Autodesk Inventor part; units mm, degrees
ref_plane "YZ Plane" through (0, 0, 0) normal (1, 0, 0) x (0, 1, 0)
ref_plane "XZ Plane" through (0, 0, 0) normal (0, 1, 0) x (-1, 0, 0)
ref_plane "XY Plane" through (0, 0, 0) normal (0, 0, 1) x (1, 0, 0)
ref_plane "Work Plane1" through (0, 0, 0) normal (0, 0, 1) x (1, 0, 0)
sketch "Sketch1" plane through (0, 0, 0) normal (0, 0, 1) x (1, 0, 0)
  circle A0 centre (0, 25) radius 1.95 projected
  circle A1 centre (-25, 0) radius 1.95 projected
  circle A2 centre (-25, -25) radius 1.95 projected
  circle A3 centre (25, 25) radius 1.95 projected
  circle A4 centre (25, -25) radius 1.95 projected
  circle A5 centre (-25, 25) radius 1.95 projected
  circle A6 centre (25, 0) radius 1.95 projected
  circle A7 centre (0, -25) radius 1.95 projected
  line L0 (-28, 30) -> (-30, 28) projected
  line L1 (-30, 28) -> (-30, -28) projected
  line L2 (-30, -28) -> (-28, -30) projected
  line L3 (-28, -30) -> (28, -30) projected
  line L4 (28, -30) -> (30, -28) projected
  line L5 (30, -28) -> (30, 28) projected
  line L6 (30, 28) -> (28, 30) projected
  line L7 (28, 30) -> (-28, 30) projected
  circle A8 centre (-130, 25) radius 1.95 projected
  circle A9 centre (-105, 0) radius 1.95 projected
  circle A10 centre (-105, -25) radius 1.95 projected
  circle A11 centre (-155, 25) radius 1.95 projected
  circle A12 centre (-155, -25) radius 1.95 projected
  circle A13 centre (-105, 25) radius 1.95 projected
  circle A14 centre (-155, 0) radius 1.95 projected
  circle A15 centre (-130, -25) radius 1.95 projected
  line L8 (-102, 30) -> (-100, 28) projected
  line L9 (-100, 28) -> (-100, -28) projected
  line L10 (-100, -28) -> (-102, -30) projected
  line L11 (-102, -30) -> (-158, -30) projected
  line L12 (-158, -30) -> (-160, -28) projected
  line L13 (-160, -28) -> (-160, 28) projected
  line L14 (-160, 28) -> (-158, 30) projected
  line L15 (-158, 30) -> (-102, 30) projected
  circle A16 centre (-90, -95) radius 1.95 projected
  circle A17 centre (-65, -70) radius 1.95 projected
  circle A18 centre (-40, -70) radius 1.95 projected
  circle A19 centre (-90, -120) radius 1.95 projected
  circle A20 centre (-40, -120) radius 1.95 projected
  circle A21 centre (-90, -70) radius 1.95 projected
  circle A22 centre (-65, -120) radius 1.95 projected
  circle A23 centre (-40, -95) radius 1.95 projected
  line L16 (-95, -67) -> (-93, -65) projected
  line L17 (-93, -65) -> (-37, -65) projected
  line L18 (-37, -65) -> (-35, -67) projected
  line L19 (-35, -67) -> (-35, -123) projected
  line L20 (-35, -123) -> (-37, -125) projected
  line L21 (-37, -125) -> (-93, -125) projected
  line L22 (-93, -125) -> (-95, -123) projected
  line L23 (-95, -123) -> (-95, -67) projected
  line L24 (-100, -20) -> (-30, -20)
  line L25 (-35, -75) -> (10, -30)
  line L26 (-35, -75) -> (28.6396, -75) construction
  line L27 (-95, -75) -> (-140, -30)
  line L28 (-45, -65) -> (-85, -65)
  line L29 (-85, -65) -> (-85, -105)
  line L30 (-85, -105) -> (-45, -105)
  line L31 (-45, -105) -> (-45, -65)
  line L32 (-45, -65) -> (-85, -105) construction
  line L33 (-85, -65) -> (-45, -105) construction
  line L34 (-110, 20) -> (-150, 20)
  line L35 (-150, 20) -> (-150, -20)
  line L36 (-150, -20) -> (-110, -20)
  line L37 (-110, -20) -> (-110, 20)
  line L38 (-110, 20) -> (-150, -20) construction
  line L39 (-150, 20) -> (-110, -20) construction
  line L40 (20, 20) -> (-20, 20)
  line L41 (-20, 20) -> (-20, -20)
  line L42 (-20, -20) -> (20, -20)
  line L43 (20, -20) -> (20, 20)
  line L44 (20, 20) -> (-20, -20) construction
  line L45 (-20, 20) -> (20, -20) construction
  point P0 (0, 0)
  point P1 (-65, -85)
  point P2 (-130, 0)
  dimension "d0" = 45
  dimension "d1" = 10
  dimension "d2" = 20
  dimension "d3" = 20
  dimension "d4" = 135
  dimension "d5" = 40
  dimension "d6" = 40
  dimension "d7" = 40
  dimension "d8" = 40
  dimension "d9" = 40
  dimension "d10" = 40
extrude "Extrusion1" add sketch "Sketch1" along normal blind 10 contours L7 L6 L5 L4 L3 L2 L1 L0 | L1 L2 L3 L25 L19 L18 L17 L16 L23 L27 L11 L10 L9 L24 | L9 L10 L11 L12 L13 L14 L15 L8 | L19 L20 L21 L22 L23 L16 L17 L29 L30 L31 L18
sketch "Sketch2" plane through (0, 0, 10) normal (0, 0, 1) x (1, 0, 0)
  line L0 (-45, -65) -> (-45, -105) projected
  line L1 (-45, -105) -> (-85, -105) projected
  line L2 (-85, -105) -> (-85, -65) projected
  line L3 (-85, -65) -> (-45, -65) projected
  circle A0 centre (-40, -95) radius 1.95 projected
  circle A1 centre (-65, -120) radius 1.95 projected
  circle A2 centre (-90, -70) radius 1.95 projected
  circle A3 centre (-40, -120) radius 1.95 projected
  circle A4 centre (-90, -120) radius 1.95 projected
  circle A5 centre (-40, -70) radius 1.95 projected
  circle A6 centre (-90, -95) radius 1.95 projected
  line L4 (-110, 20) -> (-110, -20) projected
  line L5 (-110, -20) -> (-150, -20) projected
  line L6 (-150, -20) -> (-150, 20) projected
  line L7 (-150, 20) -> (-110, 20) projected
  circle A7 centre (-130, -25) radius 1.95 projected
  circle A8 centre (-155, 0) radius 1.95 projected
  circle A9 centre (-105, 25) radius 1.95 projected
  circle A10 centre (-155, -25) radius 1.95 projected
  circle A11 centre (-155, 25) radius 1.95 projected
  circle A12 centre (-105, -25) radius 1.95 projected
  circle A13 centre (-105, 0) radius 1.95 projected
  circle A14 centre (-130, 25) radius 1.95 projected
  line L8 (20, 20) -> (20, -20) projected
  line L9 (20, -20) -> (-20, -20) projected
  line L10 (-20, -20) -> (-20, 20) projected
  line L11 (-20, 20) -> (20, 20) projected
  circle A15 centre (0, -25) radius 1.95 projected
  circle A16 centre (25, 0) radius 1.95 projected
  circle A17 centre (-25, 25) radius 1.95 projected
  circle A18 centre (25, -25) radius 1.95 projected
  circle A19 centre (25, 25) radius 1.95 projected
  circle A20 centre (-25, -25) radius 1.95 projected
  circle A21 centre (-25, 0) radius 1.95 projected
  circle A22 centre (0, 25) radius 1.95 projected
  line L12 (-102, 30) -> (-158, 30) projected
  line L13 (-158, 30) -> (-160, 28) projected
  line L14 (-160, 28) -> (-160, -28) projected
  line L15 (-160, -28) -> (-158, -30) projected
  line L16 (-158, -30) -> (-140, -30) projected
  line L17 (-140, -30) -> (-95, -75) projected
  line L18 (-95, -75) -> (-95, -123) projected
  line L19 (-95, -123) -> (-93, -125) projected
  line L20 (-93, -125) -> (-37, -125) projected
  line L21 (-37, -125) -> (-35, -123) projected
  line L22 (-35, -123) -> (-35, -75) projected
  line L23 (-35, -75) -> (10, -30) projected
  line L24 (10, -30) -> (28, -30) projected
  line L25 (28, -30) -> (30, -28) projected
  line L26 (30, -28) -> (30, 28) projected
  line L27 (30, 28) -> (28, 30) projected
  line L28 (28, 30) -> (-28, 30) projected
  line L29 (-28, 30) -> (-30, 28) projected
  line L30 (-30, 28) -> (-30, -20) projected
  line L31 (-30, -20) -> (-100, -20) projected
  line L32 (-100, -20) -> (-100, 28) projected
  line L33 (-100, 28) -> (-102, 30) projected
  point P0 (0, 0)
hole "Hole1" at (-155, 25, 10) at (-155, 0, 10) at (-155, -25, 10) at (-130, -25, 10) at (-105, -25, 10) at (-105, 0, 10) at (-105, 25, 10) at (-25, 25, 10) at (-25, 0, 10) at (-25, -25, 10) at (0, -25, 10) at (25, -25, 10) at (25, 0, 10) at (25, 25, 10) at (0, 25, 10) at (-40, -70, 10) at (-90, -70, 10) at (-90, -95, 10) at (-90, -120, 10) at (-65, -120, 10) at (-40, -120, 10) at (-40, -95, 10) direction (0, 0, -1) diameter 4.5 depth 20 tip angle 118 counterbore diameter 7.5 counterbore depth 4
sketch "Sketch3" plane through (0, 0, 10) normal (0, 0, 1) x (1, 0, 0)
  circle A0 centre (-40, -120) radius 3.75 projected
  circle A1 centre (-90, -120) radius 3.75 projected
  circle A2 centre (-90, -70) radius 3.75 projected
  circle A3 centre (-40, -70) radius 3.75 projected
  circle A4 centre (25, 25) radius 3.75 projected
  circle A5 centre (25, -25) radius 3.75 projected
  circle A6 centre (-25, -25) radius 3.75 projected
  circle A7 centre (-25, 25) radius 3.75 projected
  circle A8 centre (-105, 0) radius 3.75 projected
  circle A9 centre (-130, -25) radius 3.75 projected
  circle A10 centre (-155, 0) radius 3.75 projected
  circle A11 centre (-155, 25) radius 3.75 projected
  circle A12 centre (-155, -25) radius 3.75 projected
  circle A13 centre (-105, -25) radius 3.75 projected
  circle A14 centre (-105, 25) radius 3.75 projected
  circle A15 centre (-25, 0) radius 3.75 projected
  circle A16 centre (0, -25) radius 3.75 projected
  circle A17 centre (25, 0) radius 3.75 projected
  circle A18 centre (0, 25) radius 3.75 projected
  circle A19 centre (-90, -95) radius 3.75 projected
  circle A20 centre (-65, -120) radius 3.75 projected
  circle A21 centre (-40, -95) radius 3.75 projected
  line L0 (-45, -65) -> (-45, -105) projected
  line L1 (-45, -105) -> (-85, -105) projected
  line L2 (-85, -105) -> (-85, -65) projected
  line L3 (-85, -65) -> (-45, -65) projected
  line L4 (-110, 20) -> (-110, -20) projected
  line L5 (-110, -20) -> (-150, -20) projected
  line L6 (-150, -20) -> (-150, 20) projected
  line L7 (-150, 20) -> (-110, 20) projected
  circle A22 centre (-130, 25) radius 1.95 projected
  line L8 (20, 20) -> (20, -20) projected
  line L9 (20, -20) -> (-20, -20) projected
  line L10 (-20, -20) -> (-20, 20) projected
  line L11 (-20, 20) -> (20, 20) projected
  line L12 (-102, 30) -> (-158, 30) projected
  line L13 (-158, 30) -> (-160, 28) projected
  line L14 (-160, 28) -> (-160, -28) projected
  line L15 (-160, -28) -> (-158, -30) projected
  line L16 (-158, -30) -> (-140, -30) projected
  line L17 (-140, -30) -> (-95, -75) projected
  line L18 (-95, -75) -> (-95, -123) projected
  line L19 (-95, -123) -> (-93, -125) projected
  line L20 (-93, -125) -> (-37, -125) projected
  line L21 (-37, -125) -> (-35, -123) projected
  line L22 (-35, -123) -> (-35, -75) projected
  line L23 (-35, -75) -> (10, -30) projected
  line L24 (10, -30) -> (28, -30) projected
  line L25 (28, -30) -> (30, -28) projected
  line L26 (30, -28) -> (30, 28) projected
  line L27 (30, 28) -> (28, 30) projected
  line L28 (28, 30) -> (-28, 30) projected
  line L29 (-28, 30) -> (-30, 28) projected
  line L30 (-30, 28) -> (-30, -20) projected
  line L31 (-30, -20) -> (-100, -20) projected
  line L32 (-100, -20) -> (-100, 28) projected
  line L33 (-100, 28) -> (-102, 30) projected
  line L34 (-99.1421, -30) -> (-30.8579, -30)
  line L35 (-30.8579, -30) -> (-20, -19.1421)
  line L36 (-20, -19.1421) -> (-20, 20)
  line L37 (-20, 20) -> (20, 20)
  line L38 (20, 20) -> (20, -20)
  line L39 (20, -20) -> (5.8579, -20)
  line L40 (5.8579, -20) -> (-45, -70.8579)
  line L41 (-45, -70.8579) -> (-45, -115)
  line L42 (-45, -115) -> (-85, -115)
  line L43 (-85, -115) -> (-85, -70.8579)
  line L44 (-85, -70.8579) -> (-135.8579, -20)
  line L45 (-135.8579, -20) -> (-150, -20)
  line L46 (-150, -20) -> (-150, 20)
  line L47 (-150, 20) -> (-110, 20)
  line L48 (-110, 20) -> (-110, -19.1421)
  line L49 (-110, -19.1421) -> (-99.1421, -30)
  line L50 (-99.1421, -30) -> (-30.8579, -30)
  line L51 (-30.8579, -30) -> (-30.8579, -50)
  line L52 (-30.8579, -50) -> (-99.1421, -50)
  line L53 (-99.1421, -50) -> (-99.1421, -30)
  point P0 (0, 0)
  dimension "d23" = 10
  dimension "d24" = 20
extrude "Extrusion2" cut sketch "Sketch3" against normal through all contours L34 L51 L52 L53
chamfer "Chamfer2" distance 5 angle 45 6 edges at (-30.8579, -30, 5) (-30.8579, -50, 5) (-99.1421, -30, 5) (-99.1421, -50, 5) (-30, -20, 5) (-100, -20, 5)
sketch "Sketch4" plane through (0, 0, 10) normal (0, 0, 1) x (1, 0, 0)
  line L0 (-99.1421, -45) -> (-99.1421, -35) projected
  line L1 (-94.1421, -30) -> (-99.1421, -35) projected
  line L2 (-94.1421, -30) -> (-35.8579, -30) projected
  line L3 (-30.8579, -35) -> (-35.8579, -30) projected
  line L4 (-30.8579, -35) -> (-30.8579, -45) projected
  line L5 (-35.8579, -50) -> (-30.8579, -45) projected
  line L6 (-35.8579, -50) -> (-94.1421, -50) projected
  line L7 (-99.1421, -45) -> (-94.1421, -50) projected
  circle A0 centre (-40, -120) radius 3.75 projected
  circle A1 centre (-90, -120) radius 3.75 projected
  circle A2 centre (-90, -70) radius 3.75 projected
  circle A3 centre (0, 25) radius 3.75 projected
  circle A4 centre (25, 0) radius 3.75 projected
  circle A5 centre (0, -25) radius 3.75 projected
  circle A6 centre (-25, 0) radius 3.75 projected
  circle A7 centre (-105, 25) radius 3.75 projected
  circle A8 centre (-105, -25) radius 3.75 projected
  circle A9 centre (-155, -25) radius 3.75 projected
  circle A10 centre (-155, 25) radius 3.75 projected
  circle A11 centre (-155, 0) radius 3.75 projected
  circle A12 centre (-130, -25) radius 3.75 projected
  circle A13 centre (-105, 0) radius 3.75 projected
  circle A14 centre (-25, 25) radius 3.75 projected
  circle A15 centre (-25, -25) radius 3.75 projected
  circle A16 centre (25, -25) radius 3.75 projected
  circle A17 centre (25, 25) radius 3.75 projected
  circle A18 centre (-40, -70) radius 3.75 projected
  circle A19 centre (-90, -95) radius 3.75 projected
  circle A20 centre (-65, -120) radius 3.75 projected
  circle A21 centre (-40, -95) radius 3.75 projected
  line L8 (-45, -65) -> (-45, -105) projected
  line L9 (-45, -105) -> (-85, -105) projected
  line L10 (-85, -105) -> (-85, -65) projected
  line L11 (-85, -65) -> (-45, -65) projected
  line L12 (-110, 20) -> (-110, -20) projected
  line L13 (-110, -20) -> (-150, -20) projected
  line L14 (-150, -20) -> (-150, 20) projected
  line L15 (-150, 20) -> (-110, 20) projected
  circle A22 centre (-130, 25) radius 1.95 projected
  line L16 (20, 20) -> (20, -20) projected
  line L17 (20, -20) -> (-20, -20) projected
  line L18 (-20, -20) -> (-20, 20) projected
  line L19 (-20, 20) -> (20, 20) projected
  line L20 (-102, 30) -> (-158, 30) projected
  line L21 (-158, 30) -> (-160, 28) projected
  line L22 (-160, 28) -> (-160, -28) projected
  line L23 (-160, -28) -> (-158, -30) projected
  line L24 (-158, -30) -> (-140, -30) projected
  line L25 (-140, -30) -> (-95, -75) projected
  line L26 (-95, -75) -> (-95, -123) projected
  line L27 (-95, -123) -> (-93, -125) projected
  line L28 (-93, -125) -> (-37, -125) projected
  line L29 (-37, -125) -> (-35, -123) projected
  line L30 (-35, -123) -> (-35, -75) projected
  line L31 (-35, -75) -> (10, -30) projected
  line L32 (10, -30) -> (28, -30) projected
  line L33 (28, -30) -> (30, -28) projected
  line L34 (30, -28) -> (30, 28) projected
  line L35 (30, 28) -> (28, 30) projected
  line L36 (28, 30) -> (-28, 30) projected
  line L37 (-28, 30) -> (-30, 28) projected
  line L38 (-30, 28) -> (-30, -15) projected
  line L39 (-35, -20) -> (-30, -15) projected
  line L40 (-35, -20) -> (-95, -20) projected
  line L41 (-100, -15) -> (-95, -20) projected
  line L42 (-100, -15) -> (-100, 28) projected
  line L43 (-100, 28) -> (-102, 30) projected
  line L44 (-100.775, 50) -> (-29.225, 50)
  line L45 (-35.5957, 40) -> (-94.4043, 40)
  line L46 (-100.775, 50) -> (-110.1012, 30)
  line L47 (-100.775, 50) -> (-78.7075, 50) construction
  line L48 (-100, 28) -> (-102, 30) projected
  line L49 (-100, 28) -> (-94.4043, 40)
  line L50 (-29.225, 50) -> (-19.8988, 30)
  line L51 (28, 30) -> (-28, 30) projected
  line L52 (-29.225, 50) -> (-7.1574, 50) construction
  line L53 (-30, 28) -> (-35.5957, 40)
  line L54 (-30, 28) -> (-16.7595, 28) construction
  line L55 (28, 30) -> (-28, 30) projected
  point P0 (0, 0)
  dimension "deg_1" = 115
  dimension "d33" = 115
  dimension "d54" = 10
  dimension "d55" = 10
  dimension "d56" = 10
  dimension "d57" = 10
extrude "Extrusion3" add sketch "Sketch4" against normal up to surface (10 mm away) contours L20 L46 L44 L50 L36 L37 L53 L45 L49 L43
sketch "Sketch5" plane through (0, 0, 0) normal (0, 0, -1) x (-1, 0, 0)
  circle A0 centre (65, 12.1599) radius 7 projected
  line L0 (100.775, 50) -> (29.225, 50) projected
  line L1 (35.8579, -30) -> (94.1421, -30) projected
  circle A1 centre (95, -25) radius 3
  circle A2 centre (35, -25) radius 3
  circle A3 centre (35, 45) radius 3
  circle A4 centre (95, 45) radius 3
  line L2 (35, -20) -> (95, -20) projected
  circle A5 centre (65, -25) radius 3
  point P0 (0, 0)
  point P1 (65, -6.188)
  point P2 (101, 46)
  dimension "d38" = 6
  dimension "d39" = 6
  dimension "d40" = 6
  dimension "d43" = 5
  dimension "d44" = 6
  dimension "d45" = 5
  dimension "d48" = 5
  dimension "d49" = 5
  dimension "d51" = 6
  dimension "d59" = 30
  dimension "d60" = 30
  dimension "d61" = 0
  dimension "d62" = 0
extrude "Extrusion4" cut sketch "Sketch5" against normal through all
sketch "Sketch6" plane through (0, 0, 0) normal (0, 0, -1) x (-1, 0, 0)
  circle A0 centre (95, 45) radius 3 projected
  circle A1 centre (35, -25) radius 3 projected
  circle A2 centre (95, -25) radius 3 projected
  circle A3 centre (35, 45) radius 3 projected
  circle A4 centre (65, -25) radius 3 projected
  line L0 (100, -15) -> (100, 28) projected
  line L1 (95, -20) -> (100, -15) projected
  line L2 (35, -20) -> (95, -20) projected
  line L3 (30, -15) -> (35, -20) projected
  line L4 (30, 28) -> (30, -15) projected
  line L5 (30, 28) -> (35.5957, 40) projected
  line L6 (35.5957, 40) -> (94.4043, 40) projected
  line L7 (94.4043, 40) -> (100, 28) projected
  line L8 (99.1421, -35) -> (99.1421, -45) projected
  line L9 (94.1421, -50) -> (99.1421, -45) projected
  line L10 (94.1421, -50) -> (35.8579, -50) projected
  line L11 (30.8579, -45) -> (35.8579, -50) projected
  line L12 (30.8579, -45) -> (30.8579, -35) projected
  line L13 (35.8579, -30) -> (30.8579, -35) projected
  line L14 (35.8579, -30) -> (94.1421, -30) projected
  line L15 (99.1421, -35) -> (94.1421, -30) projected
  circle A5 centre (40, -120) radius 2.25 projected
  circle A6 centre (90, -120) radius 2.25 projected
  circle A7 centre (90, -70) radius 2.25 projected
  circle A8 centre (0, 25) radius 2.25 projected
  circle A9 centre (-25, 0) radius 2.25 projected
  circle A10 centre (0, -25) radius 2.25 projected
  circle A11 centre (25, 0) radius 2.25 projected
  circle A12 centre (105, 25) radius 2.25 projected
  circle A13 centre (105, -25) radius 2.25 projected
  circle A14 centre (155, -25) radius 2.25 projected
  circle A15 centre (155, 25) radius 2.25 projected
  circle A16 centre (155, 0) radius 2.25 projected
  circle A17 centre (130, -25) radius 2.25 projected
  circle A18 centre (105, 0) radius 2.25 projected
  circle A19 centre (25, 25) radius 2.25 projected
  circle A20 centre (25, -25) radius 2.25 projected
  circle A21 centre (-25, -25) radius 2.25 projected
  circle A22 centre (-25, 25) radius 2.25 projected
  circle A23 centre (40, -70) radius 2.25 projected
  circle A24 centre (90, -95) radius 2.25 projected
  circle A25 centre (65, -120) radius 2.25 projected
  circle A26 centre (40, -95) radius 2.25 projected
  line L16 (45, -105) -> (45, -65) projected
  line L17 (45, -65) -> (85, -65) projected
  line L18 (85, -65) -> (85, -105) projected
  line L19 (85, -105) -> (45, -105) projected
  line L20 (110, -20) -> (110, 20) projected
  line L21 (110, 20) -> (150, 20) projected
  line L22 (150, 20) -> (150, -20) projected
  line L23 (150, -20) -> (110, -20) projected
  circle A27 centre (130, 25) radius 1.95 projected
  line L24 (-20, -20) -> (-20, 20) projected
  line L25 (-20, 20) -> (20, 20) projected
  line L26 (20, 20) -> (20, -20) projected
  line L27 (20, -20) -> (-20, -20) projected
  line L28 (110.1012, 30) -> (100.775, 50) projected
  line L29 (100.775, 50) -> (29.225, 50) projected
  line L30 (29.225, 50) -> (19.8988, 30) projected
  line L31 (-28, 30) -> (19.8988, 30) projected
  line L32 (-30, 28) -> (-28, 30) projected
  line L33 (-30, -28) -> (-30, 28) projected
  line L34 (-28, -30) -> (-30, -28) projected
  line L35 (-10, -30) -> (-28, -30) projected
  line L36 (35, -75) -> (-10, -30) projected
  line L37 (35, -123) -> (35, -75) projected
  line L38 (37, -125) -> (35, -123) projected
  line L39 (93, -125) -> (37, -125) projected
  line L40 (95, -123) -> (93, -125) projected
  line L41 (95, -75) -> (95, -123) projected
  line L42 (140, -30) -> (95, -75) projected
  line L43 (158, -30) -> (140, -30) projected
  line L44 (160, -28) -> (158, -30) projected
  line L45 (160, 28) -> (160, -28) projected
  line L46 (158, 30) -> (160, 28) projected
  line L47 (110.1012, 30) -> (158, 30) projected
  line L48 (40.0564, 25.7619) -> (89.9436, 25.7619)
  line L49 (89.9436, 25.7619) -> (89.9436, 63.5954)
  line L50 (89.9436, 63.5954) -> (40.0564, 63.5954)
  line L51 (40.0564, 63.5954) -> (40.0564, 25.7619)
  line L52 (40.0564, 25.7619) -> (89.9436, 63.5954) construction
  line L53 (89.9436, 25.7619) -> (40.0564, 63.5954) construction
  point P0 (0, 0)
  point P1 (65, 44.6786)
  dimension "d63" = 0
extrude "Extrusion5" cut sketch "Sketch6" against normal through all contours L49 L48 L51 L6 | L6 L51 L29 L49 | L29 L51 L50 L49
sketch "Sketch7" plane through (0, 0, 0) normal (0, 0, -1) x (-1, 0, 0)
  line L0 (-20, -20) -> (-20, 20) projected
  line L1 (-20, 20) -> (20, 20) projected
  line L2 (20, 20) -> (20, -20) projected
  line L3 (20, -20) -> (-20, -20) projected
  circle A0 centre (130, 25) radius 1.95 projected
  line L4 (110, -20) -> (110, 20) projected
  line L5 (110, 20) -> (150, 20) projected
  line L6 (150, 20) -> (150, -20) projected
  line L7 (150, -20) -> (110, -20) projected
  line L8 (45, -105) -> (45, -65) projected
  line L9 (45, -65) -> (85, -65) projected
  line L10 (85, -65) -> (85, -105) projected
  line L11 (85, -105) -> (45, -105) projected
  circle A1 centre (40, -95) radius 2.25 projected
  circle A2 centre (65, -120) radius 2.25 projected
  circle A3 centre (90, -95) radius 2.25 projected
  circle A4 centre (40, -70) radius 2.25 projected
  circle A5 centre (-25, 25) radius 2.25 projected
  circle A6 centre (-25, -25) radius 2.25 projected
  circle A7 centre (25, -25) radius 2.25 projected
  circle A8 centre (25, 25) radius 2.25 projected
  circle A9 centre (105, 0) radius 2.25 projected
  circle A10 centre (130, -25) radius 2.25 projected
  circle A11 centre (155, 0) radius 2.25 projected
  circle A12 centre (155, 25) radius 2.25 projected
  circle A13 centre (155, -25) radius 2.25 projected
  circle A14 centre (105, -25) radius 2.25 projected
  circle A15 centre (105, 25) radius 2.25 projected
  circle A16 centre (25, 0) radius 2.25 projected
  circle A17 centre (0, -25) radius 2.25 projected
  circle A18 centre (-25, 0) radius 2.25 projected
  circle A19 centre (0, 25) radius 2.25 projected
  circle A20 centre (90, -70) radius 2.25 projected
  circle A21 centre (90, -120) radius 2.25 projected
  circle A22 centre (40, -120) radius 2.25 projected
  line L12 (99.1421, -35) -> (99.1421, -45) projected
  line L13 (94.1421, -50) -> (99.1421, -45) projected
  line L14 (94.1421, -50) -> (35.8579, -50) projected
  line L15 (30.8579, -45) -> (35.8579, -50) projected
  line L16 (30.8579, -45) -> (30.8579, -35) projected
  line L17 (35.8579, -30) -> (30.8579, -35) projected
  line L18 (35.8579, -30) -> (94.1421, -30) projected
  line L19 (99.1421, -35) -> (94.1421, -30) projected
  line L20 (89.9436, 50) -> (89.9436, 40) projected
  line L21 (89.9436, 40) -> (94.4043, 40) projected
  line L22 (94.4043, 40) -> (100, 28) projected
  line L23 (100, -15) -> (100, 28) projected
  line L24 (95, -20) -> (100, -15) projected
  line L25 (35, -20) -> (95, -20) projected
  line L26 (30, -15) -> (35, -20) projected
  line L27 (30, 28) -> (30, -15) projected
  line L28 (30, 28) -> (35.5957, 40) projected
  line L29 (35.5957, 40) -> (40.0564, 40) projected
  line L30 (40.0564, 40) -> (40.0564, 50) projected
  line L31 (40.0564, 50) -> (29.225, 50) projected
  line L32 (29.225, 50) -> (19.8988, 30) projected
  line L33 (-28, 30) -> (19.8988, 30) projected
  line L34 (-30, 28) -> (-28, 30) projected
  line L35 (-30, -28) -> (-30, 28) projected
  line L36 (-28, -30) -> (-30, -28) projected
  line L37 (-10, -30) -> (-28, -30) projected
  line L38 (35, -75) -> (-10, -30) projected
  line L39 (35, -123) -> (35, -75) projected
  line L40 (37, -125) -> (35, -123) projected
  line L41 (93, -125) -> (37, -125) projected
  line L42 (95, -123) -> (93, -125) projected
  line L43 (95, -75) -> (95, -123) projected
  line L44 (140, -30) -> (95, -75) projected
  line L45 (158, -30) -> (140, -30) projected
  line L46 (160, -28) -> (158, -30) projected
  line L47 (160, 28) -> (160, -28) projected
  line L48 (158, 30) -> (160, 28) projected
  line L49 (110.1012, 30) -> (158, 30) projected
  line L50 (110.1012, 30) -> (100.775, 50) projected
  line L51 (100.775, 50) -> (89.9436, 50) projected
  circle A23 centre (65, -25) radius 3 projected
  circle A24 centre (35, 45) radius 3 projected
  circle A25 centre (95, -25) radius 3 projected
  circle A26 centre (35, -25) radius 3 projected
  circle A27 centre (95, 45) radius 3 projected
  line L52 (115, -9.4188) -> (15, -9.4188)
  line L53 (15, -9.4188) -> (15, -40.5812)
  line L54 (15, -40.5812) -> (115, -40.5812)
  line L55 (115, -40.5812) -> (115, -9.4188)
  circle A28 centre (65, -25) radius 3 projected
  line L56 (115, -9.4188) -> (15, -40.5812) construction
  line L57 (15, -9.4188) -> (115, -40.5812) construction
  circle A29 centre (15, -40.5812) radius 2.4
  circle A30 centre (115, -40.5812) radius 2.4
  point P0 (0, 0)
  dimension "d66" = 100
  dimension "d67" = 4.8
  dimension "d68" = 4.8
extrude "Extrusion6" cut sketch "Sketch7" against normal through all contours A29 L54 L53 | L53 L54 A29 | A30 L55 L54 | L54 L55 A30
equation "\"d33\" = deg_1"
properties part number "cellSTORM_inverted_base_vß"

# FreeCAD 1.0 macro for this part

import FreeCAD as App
import Part
import Sketcher
Q = App.Units.Quantity


def edges_at(feature, points):
    """Names of the edges that pass closest to the given points."""
    edges = feature.Shape.Edges
    near = lambda p: min(range(len(edges)), key=lambda i: edges[i].distToShape(Part.Vertex(*p))[0])
    return sorted({f"Edge{near(p) + 1}" for p in points})


def add_polygon(sketch, points):
    """Adds a closed chain of lines whose ends are joined by coincident constraints."""
    first, n = sketch.GeometryCount, len(points)
    for a, b in zip(points, points[1:] + points[:1]):
        sketch.addGeometry(Part.LineSegment(App.Vector(*a, 0), App.Vector(*b, 0)), False)
    for i in range(n):
        sketch.addConstraint(Sketcher.Constraint("Coincident", first + i, 2, first + (i + 1) % n, 1))

doc = App.newDocument("Part")
body = doc.addObject("PartDesign::Body", "Body")

sketch1 = body.newObject("Sketcher::SketchObject", "Sketch")
sketch1.AttachmentSupport = (doc.getObject("XY_Plane"), [""])
sketch1.MapMode = "FlatFace"
add_polygon(sketch1, [(28, 30), (-28, 30), (-30, 28), (-30, -20), (-100, -20), (-100, 28), (-102, 30), (-158, 30), (-160, 28), (-160, -28), (-158, -30), (-140, -30), (-95, -75), (-95, -123), (-93, -125), (-37, -125), (-35, -123), (-35, -75), (10, -30), (28, -30), (30, -28), (30, 28)])
sketch1.addGeometry(Part.Circle(App.Vector(-25, -25, 0), App.Vector(0, 0, 1), 1.9), False)
sketch1.addGeometry(Part.Circle(App.Vector(0, -25, 0), App.Vector(0, 0, 1), 1.9), False)
sketch1.addGeometry(Part.Circle(App.Vector(25, -25, 0), App.Vector(0, 0, 1), 1.9), False)
sketch1.addGeometry(Part.Circle(App.Vector(-25, 0, 0), App.Vector(0, 0, 1), 1.9), False)
sketch1.addGeometry(Part.Circle(App.Vector(-25, 25, 0), App.Vector(0, 0, 1), 1.9), False)
add_polygon(sketch1, [(-20, 20), (20, 20), (20, -20), (-20, -20)])
sketch1.addGeometry(Part.Circle(App.Vector(25, 0, 0), App.Vector(0, 0, 1), 1.9), False)
sketch1.addGeometry(Part.Circle(App.Vector(0, 25, 0), App.Vector(0, 0, 1), 1.9), False)
sketch1.addGeometry(Part.Circle(App.Vector(25, 25, 0), App.Vector(0, 0, 1), 1.9), False)
add_polygon(sketch1, [(-85, -65), (-45, -65), (-45, -105), (-85, -105)])
sketch1.addGeometry(Part.Circle(App.Vector(-105, 0, 0), App.Vector(0, 0, 1), 1.9), False)
sketch1.addGeometry(Part.Circle(App.Vector(-105, 25, 0), App.Vector(0, 0, 1), 1.9), False)
sketch1.addGeometry(Part.Circle(App.Vector(-130, 25, 0), App.Vector(0, 0, 1), 1.9), False)
sketch1.addGeometry(Part.Circle(App.Vector(-155, -25, 0), App.Vector(0, 0, 1), 1.9), False)
sketch1.addGeometry(Part.Circle(App.Vector(-130, -25, 0), App.Vector(0, 0, 1), 1.9), False)
sketch1.addGeometry(Part.Circle(App.Vector(-105, -25, 0), App.Vector(0, 0, 1), 1.9), False)
sketch1.addGeometry(Part.Circle(App.Vector(-155, 0, 0), App.Vector(0, 0, 1), 1.9), False)
add_polygon(sketch1, [(-150, 20), (-110, 20), (-110, -20), (-150, -20)])
sketch1.addGeometry(Part.Circle(App.Vector(-155, 25, 0), App.Vector(0, 0, 1), 1.9), False)
sketch1.addGeometry(Part.Circle(App.Vector(-90, -95, 0), App.Vector(0, 0, 1), 1.9), False)
sketch1.addGeometry(Part.Circle(App.Vector(-90, -70, 0), App.Vector(0, 0, 1), 1.9), False)
sketch1.addGeometry(Part.Circle(App.Vector(-65, -120, 0), App.Vector(0, 0, 1), 1.9), False)
sketch1.addGeometry(Part.Circle(App.Vector(-40, -120, 0), App.Vector(0, 0, 1), 1.9), False)
sketch1.addGeometry(Part.Circle(App.Vector(-40, -95, 0), App.Vector(0, 0, 1), 1.9), False)
sketch1.addGeometry(Part.Circle(App.Vector(-40, -70, 0), App.Vector(0, 0, 1), 1.9), False)
sketch1.addGeometry(Part.Circle(App.Vector(-90, -120, 0), App.Vector(0, 0, 1), 1.9), False)
sketch1.addConstraint(Sketcher.Constraint("Horizontal", 0))
sketch1.addConstraint(Sketcher.Constraint("Vertical", 2))
sketch1.addConstraint(Sketcher.Constraint("Horizontal", 3))
sketch1.addConstraint(Sketcher.Constraint("Vertical", 4))
sketch1.addConstraint(Sketcher.Constraint("Horizontal", 6))
sketch1.addConstraint(Sketcher.Constraint("Vertical", 8))
sketch1.addConstraint(Sketcher.Constraint("Horizontal", 10))
sketch1.addConstraint(Sketcher.Constraint("Vertical", 12))
sketch1.addConstraint(Sketcher.Constraint("Horizontal", 14))
sketch1.addConstraint(Sketcher.Constraint("Vertical", 16))
sketch1.addConstraint(Sketcher.Constraint("Horizontal", 18))
sketch1.addConstraint(Sketcher.Constraint("Vertical", 20))
sketch1.addConstraint(Sketcher.Constraint("Horizontal", 27))
sketch1.addConstraint(Sketcher.Constraint("Vertical", 28))
sketch1.addConstraint(Sketcher.Constraint("Horizontal", 29))
sketch1.addConstraint(Sketcher.Constraint("Vertical", 30))
sketch1.addConstraint(Sketcher.Constraint("Horizontal", 34))
sketch1.addConstraint(Sketcher.Constraint("Vertical", 35))
sketch1.addConstraint(Sketcher.Constraint("Horizontal", 36))
sketch1.addConstraint(Sketcher.Constraint("Vertical", 37))
sketch1.addConstraint(Sketcher.Constraint("Horizontal", 45))
sketch1.addConstraint(Sketcher.Constraint("Vertical", 46))
sketch1.addConstraint(Sketcher.Constraint("Horizontal", 47))
sketch1.addConstraint(Sketcher.Constraint("Vertical", 48))
sketch1.addConstraint(Sketcher.Constraint("Equal", 22, 23))
sketch1.addConstraint(Sketcher.Constraint("Equal", 23, 24))
sketch1.addConstraint(Sketcher.Constraint("Equal", 24, 25))
sketch1.addConstraint(Sketcher.Constraint("Equal", 25, 26))
sketch1.addConstraint(Sketcher.Constraint("Equal", 26, 31))
sketch1.addConstraint(Sketcher.Constraint("Equal", 31, 32))
sketch1.addConstraint(Sketcher.Constraint("Equal", 32, 33))
sketch1.addConstraint(Sketcher.Constraint("Equal", 33, 38))
sketch1.addConstraint(Sketcher.Constraint("Equal", 38, 39))
sketch1.addConstraint(Sketcher.Constraint("Equal", 39, 40))
sketch1.addConstraint(Sketcher.Constraint("Equal", 40, 41))
sketch1.addConstraint(Sketcher.Constraint("Equal", 41, 42))
sketch1.addConstraint(Sketcher.Constraint("Equal", 42, 43))
sketch1.addConstraint(Sketcher.Constraint("Equal", 43, 44))
sketch1.addConstraint(Sketcher.Constraint("Equal", 44, 49))
sketch1.addConstraint(Sketcher.Constraint("Equal", 49, 50))
sketch1.addConstraint(Sketcher.Constraint("Equal", 50, 51))
sketch1.addConstraint(Sketcher.Constraint("Equal", 51, 52))
sketch1.addConstraint(Sketcher.Constraint("Equal", 52, 53))
sketch1.addConstraint(Sketcher.Constraint("Equal", 53, 54))
sketch1.addConstraint(Sketcher.Constraint("Equal", 54, 55))
sketch1.addConstraint(Sketcher.Constraint("Equal", 55, 56))
sketch1.addConstraint(Sketcher.Constraint("Symmetric", 24, 3, 26, 3, -1, 1))
sketch1.addConstraint(Sketcher.Constraint("Symmetric", 25, 3, 31, 3, -1, 1))
sketch1.addConstraint(Sketcher.Constraint("Symmetric", 23, 3, 32, 3, -1, 1))
sketch1.addConstraint(Sketcher.Constraint("Symmetric", 22, 3, 33, 3, -1, 1))
sketch1.addConstraint(Sketcher.Constraint("Symmetric", 0, 2, 18, 2, -1, 1))
sketch1.addConstraint(Sketcher.Constraint("Symmetric", 1, 2, 19, 2, -1, 1))
sketch1.addConstraint(Sketcher.Constraint("Symmetric", 27, 2, 29, 2, -1, 1))
sketch1.addConstraint(Sketcher.Constraint("Symmetric", 22, 3, 24, 3, -2))
sketch1.addConstraint(Sketcher.Constraint("Symmetric", 40, 3, 42, 3, -1))
sketch1.addConstraint(Sketcher.Constraint("Symmetric", 39, 3, 43, 3, -1))
sketch1.addConstraint(Sketcher.Constraint("Symmetric", 41, 3, 49, 3, -1))
sketch1.addConstraint(Sketcher.Constraint("Symmetric", 6, 2, 9, 2, -1))
sketch1.addConstraint(Sketcher.Constraint("PointOnObject", 23, 3, -2))
sketch1.addConstraint(Sketcher.Constraint("PointOnObject", 25, 3, -1))
sketch1.addConstraint(Sketcher.Constraint("PointOnObject", 38, 3, -1))
sketch1.addConstraint(Sketcher.Constraint("PointOnObject", 44, 3, -1))
sketch1.addConstraint(Sketcher.Constraint("Perpendicular", 1, 5))
sketch1.addConstraint(Sketcher.Constraint("Perpendicular", 5, 7))
sketch1.addConstraint(Sketcher.Constraint("Perpendicular", 7, 9))
sketch1.addConstraint(Sketcher.Constraint("Parallel", 9, 11))
sketch1.addConstraint(Sketcher.Constraint("Parallel", 11, 13))
sketch1.addConstraint(Sketcher.Constraint("Perpendicular", 13, 15))
sketch1.addConstraint(Sketcher.Constraint("Parallel", 15, 17))
sketch1.addConstraint(Sketcher.Constraint("Perpendicular", 19, 21))
sketch1.addConstraint(Sketcher.Constraint("Horizontal", 22, 3, 23, 3))
sketch1.addConstraint(Sketcher.Constraint("Horizontal", 33, 3, 39, 3))
sketch1.addConstraint(Sketcher.Constraint("Horizontal", 39, 3, 40, 3))
sketch1.addConstraint(Sketcher.Constraint("Horizontal", 24, 3, 41, 3))
sketch1.addConstraint(Sketcher.Constraint("Horizontal", 52, 3, 53, 3))
sketch1.addConstraint(Sketcher.Constraint("Horizontal", 50, 3, 54, 3))
sketch1.addConstraint(Sketcher.Constraint("Horizontal", 51, 3, 55, 3))
sketch1.addConstraint(Sketcher.Constraint("Horizontal", 53, 3, 56, 3))
sketch1.addConstraint(Sketcher.Constraint("Horizontal", 1, 2, 4, 2))
sketch1.addConstraint(Sketcher.Constraint("Horizontal", 0, 2, 5, 2))
sketch1.addConstraint(Sketcher.Constraint("Horizontal", 4, 2, 7, 2))
sketch1.addConstraint(Sketcher.Constraint("Horizontal", 12, 2, 15, 2))
sketch1.addConstraint(Sketcher.Constraint("Horizontal", 11, 2, 16, 2))
sketch1.addConstraint(Sketcher.Constraint("Horizontal", 8, 2, 19, 2))
sketch1.addConstraint(Sketcher.Constraint("Horizontal", 7, 2, 20, 2))
sketch1.addConstraint(Sketcher.Constraint("Horizontal", 3, 2, 28, 2))
sketch1.addConstraint(Sketcher.Constraint("Horizontal", 30, 2, 45, 2))
sketch1.addConstraint(Sketcher.Constraint("Horizontal", 29, 2, 46, 2))
sketch1.addConstraint(Sketcher.Constraint("Vertical", 22, 3, 25, 3))
sketch1.addConstraint(Sketcher.Constraint("Vertical", 38, 3, 39, 3))
sketch1.addConstraint(Sketcher.Constraint("Vertical", 41, 3, 44, 3))
sketch1.addConstraint(Sketcher.Constraint("Vertical", 50, 3, 51, 3))
sketch1.addConstraint(Sketcher.Constraint("Vertical", 53, 3, 54, 3))
sketch1.addConstraint(Sketcher.Constraint("Vertical", 54, 3, 55, 3))
sketch1.addConstraint(Sketcher.Constraint("Vertical", 51, 3, 56, 3))
sketch1.addConstraint(Sketcher.Constraint("Equal", 0, 6))
sketch1.addConstraint(Sketcher.Constraint("Equal", 6, 14))
sketch1.addConstraint(Sketcher.Constraint("Equal", 10, 18))
sketch1.addConstraint(Sketcher.Constraint("Equal", 29, 34))
sketch1.addConstraint(Sketcher.Constraint("Equal", 36, 45))
sketch1.addConstraint(Sketcher.Constraint("Equal", 14, 8))
sketch1.addConstraint(Sketcher.Constraint("Equal", 4, 12))
sketch1.addConstraint(Sketcher.Constraint("Equal", 47, 28))
sketch1.addConstraint(Sketcher.Constraint("Equal", 30, 35))
sketch1.addConstraint(Sketcher.Constraint("Equal", 9, 13))
sketch1.addConstraint(Sketcher.Constraint("DistanceX", 27, 1, 27, 2, Q("40 mm")))
sketch1.addConstraint(Sketcher.Constraint("DistanceX", 53, 3, -1, 1, Q("40 mm")))
sketch1.addConstraint(Sketcher.Constraint("DistanceX", -1, 1, 17, 2, Q("10 mm")))
sketch1.addConstraint(Sketcher.Constraint("DistanceX", 34, 2, -1, 1, Q("45 mm")))
sketch1.addConstraint(Sketcher.Constraint("DistanceX", 42, 3, 50, 3, Q("40 mm")))
sketch1.addConstraint(Sketcher.Constraint("DistanceY", 51, 3, 43, 3, Q("45 mm")))
sketch1.addConstraint(Sketcher.Constraint("DistanceX", 52, 3, 22, 3, Q("40 mm")))
sketch1.addConstraint(Sketcher.Constraint("DistanceX", 43, 3, 52, 3, Q("40 mm")))
sketch1.addConstraint(Sketcher.Constraint("DistanceY", 2, 2, 26, 3, Q("45 mm")))
sketch1.addConstraint(Sketcher.Constraint("DistanceX", 3, 2, 51, 3, Q("10 mm")))
sketch1.addConstraint(Sketcher.Constraint("DistanceX", 10, 2, 42, 3, Q("10 mm")))
sketch1.addConstraint(Sketcher.Constraint("DistanceY", 50, 3, 11, 2, Q("20 mm")))
sketch1.addConstraint(Sketcher.Constraint("DistanceY", 56, 3, 11, 2, Q("45 mm")))
sketch1.addConstraint(Sketcher.Constraint("DistanceX", 43, 3, 11, 2, Q("10 mm")))
sketch1.addConstraint(Sketcher.Constraint("DistanceX", 34, 2, 16, 2, Q("10 mm")))
sketch1.addConstraint(Sketcher.Constraint("DistanceY", 16, 2, 34, 2, Q("10 mm")))
sketch1.addConstraint(Sketcher.Constraint("DistanceX", 45, 2, 4, 2, Q("10 mm")))
sketch1.addConstraint(Sketcher.Constraint("Diameter", 22, Q("3.9 mm")))
sketch1.addConstraint(Sketcher.Constraint("DistanceX", 0, 2, 0, 1, Q("56 mm")))
sketch1.addConstraint(Sketcher.Constraint("DistanceX", 41, 3, -1, 1, Q("155 mm")))
pad1 = body.newObject("PartDesign::Pad", "Pad")
pad1.Profile = sketch1
pad1.Length = 10

sketch2 = body.newObject("Sketcher::SketchObject", "Sketch001")
sketch2.AttachmentSupport = (doc.getObject("XY_Plane"), [""])
sketch2.MapMode = "FlatFace"
sketch2.AttachmentOffset = App.Placement(App.Vector(0, 0, 10), App.Rotation())
sketch2.addGeometry(Part.Circle(App.Vector(-155, 25, 0), App.Vector(0, 0, 1), 2.2), False)
sketch2.addGeometry(Part.Circle(App.Vector(-155, 0, 0), App.Vector(0, 0, 1), 2.2), False)
sketch2.addGeometry(Part.Circle(App.Vector(-155, -25, 0), App.Vector(0, 0, 1), 2.2), False)
sketch2.addGeometry(Part.Circle(App.Vector(-130, -25, 0), App.Vector(0, 0, 1), 2.2), False)
sketch2.addGeometry(Part.Circle(App.Vector(-105, -25, 0), App.Vector(0, 0, 1), 2.2), False)
sketch2.addGeometry(Part.Circle(App.Vector(-105, 0, 0), App.Vector(0, 0, 1), 2.2), False)
sketch2.addGeometry(Part.Circle(App.Vector(-105, 25, 0), App.Vector(0, 0, 1), 2.2), False)
sketch2.addGeometry(Part.Circle(App.Vector(-25, 25, 0), App.Vector(0, 0, 1), 2.2), False)
sketch2.addGeometry(Part.Circle(App.Vector(-25, 0, 0), App.Vector(0, 0, 1), 2.2), False)
sketch2.addGeometry(Part.Circle(App.Vector(-25, -25, 0), App.Vector(0, 0, 1), 2.2), False)
sketch2.addGeometry(Part.Circle(App.Vector(0, -25, 0), App.Vector(0, 0, 1), 2.2), False)
sketch2.addGeometry(Part.Circle(App.Vector(25, -25, 0), App.Vector(0, 0, 1), 2.2), False)
sketch2.addGeometry(Part.Circle(App.Vector(25, 0, 0), App.Vector(0, 0, 1), 2.2), False)
sketch2.addGeometry(Part.Circle(App.Vector(25, 25, 0), App.Vector(0, 0, 1), 2.2), False)
sketch2.addGeometry(Part.Circle(App.Vector(0, 25, 0), App.Vector(0, 0, 1), 2.2), False)
sketch2.addGeometry(Part.Circle(App.Vector(-40, -70, 0), App.Vector(0, 0, 1), 2.2), False)
sketch2.addGeometry(Part.Circle(App.Vector(-90, -70, 0), App.Vector(0, 0, 1), 2.2), False)
sketch2.addGeometry(Part.Circle(App.Vector(-90, -95, 0), App.Vector(0, 0, 1), 2.2), False)
sketch2.addGeometry(Part.Circle(App.Vector(-90, -120, 0), App.Vector(0, 0, 1), 2.2), False)
sketch2.addGeometry(Part.Circle(App.Vector(-65, -120, 0), App.Vector(0, 0, 1), 2.2), False)
sketch2.addGeometry(Part.Circle(App.Vector(-40, -120, 0), App.Vector(0, 0, 1), 2.2), False)
sketch2.addGeometry(Part.Circle(App.Vector(-40, -95, 0), App.Vector(0, 0, 1), 2.2), False)
sketch2.addConstraint(Sketcher.Constraint("Equal", 0, 1))
sketch2.addConstraint(Sketcher.Constraint("Equal", 1, 2))
sketch2.addConstraint(Sketcher.Constraint("Equal", 2, 3))
sketch2.addConstraint(Sketcher.Constraint("Equal", 3, 4))
sketch2.addConstraint(Sketcher.Constraint("Equal", 4, 5))
sketch2.addConstraint(Sketcher.Constraint("Equal", 5, 6))
sketch2.addConstraint(Sketcher.Constraint("Equal", 6, 7))
sketch2.addConstraint(Sketcher.Constraint("Equal", 7, 8))
sketch2.addConstraint(Sketcher.Constraint("Equal", 8, 9))
sketch2.addConstraint(Sketcher.Constraint("Equal", 9, 10))
sketch2.addConstraint(Sketcher.Constraint("Equal", 10, 11))
sketch2.addConstraint(Sketcher.Constraint("Equal", 11, 12))
sketch2.addConstraint(Sketcher.Constraint("Equal", 12, 13))
sketch2.addConstraint(Sketcher.Constraint("Equal", 13, 14))
sketch2.addConstraint(Sketcher.Constraint("Equal", 14, 15))
sketch2.addConstraint(Sketcher.Constraint("Equal", 15, 16))
sketch2.addConstraint(Sketcher.Constraint("Equal", 16, 17))
sketch2.addConstraint(Sketcher.Constraint("Equal", 17, 18))
sketch2.addConstraint(Sketcher.Constraint("Equal", 18, 19))
sketch2.addConstraint(Sketcher.Constraint("Equal", 19, 20))
sketch2.addConstraint(Sketcher.Constraint("Equal", 20, 21))
sketch2.addConstraint(Sketcher.Constraint("Symmetric", 7, 3, 11, 3, -1, 1))
sketch2.addConstraint(Sketcher.Constraint("Symmetric", 8, 3, 12, 3, -1, 1))
sketch2.addConstraint(Sketcher.Constraint("Symmetric", 9, 3, 13, 3, -1, 1))
sketch2.addConstraint(Sketcher.Constraint("Symmetric", 10, 3, 14, 3, -1, 1))
sketch2.addConstraint(Sketcher.Constraint("Symmetric", 9, 3, 11, 3, -2))
sketch2.addConstraint(Sketcher.Constraint("Symmetric", 0, 3, 2, 3, -1))
sketch2.addConstraint(Sketcher.Constraint("Symmetric", 4, 3, 6, 3, -1))
sketch2.addConstraint(Sketcher.Constraint("PointOnObject", 1, 3, -1))
sketch2.addConstraint(Sketcher.Constraint("PointOnObject", 5, 3, -1))
sketch2.addConstraint(Sketcher.Constraint("PointOnObject", 8, 3, -1))
sketch2.addConstraint(Sketcher.Constraint("PointOnObject", 10, 3, -2))
sketch2.addConstraint(Sketcher.Constraint("Horizontal", 2, 3, 3, 3))
sketch2.addConstraint(Sketcher.Constraint("Horizontal", 3, 3, 4, 3))
sketch2.addConstraint(Sketcher.Constraint("Horizontal", 6, 3, 7, 3))
sketch2.addConstraint(Sketcher.Constraint("Horizontal", 9, 3, 10, 3))
sketch2.addConstraint(Sketcher.Constraint("Horizontal", 15, 3, 16, 3))
sketch2.addConstraint(Sketcher.Constraint("Horizontal", 18, 3, 19, 3))
sketch2.addConstraint(Sketcher.Constraint("Horizontal", 19, 3, 20, 3))
sketch2.addConstraint(Sketcher.Constraint("Horizontal", 17, 3, 21, 3))
sketch2.addConstraint(Sketcher.Constraint("Vertical", 0, 3, 1, 3))
sketch2.addConstraint(Sketcher.Constraint("Vertical", 4, 3, 5, 3))
sketch2.addConstraint(Sketcher.Constraint("Vertical", 7, 3, 8, 3))
sketch2.addConstraint(Sketcher.Constraint("Vertical", 16, 3, 17, 3))
sketch2.addConstraint(Sketcher.Constraint("Vertical", 17, 3, 18, 3))
sketch2.addConstraint(Sketcher.Constraint("Vertical", 15, 3, 20, 3))
sketch2.addConstraint(Sketcher.Constraint("Vertical", 20, 3, 21, 3))
sketch2.addConstraint(Sketcher.Constraint("Diameter", 0, Q("4.5 mm")))
sketch2.addConstraint(Sketcher.Constraint("DistanceX", 0, 3, -1, 1, Q("155 mm")))
sketch2.addConstraint(Sketcher.Constraint("DistanceY", -1, 1, 0, 3, Q("25 mm")))
sketch2.addConstraint(Sketcher.Constraint("DistanceX", 3, 3, -1, 1, Q("130 mm")))
sketch2.addConstraint(Sketcher.Constraint("DistanceX", 4, 3, -1, 1, Q("105 mm")))
sketch2.addConstraint(Sketcher.Constraint("DistanceX", 7, 3, -1, 1, Q("25 mm")))
sketch2.addConstraint(Sketcher.Constraint("DistanceX", 15, 3, -1, 1, Q("40 mm")))
sketch2.addConstraint(Sketcher.Constraint("DistanceY", 15, 3, -1, 1, Q("70 mm")))
sketch2.addConstraint(Sketcher.Constraint("DistanceX", 16, 3, -1, 1, Q("90 mm")))
sketch2.addConstraint(Sketcher.Constraint("DistanceY", 17, 3, -1, 1, Q("95 mm")))
sketch2.addConstraint(Sketcher.Constraint("DistanceY", 18, 3, -1, 1, Q("120 mm")))
sketch2.addConstraint(Sketcher.Constraint("DistanceX", 19, 3, -1, 1, Q("65 mm")))
doc.recompute()
hole = body.newObject("PartDesign::Hole", "Hole")
hole.Profile = sketch2
hole.ThreadType = "None"
hole.Diameter = 4.5
hole.DepthType = "Dimension"
hole.Depth = 20
hole.DrillPoint = "Angled"
hole.DrillPointAngle = 118
hole.HoleCutType = "Counterbore"
hole.HoleCutDiameter = 7.5
hole.HoleCutDepth = 4

sketch3 = body.newObject("Sketcher::SketchObject", "Sketch002")
sketch3.AttachmentSupport = (doc.getObject("XY_Plane"), [""])
sketch3.MapMode = "FlatFace"
sketch3.AttachmentOffset = App.Placement(App.Vector(0, 0, 10), App.Rotation())
add_polygon(sketch3, [(-31, -30), (-99, -30), (-99, -50), (-31, -50)])
sketch3.addConstraint(Sketcher.Constraint("Horizontal", 0))
sketch3.addConstraint(Sketcher.Constraint("Vertical", 1))
sketch3.addConstraint(Sketcher.Constraint("Horizontal", 2))
sketch3.addConstraint(Sketcher.Constraint("Vertical", 3))
sketch3.addConstraint(Sketcher.Constraint("DistanceY", 1, 2, 1, 1, Q("20 mm")))
sketch3.addConstraint(Sketcher.Constraint("DistanceY", 0, 2, -1, 1, Q("30 mm")))
sketch3.addConstraint(Sketcher.Constraint("DistanceX", 0, 2, 0, 1, Q("68.2842 mm")))
sketch3.addConstraint(Sketcher.Constraint("DistanceX", 0, 2, -1, 1, Q("99.142 mm")))
pocket1 = body.newObject("PartDesign::Pocket", "Pocket")
pocket1.Profile = sketch3
pocket1.Type = "ThroughAll"
doc.recompute()

chamfer = body.newObject("PartDesign::Chamfer", "Chamfer")
chamfer.Base = (pocket1, edges_at(pocket1, [
    (-30.858, -30, 5),
    (-30.858, -50, 5),
    (-99.142, -30, 5),
    (-99.142, -50, 5),
    (-30, -20, 5),
    (-100, -20, 5),
]))
chamfer.Size = 5

sketch4 = body.newObject("Sketcher::SketchObject", "Sketch003")
sketch4.AttachmentSupport = (doc.getObject("XY_Plane"), [""])
sketch4.MapMode = "FlatFace"
sketch4.AttachmentOffset = App.Placement(App.Vector(0, 0, 10), App.Rotation())
add_polygon(sketch4, [(-110.1, 30), (-102, 30), (-100, 28), (-94.4, 40), (-35.6, 40), (-30, 28), (-28, 30), (-19.9, 30), (-29.2, 50), (-100.8, 50)])
sketch4.addConstraint(Sketcher.Constraint("Horizontal", 0))
sketch4.addConstraint(Sketcher.Constraint("Horizontal", 3))
sketch4.addConstraint(Sketcher.Constraint("Horizontal", 6))
sketch4.addConstraint(Sketcher.Constraint("Horizontal", 8))
sketch4.addConstraint(Sketcher.Constraint("Perpendicular", 1, 5))
sketch4.addConstraint(Sketcher.Constraint("Parallel", 4, 7))
sketch4.addConstraint(Sketcher.Constraint("Parallel", 2, 9))
sketch4.addConstraint(Sketcher.Constraint("Horizontal", 1, 2, 4, 2))
sketch4.addConstraint(Sketcher.Constraint("Horizontal", 0, 2, 5, 2))
sketch4.addConstraint(Sketcher.Constraint("Equal", 0, 6))
sketch4.addConstraint(Sketcher.Constraint("Equal", 2, 4))
sketch4.addConstraint(Sketcher.Constraint("Equal", 1, 5))
sketch4.addConstraint(Sketcher.Constraint("Angle", 7, Q("115 deg")))
sketch4.addConstraint(Sketcher.Constraint("DistanceY", 0, 2, 2, 2, Q("10 mm")))
sketch4.addConstraint(Sketcher.Constraint("DistanceY", 3, 2, 7, 2, Q("10 mm")))
sketch4.addConstraint(Sketcher.Constraint("DistanceX", 0, 2, -1, 1, Q("102 mm")))
sketch4.addConstraint(Sketcher.Constraint("DistanceY", -1, 1, 0, 2, Q("30 mm")))
sketch4.addConstraint(Sketcher.Constraint("DistanceX", 1, 2, -1, 1, Q("100 mm")))
sketch4.addConstraint(Sketcher.Constraint("DistanceX", 4, 2, -1, 1, Q("30 mm")))
sketch4.addConstraint(Sketcher.Constraint("DistanceX", 8, 2, 8, 1, Q("71.55 mm")))
pad2 = body.newObject("PartDesign::Pad", "Pad001")
pad2.Profile = sketch4
pad2.Length = 10
pad2.Reversed = True

sketch5 = body.newObject("Sketcher::SketchObject", "Sketch004")
sketch5.AttachmentSupport = (doc.getObject("XY_Plane"), [""])
sketch5.MapMode = "FlatFace"
sketch5.addGeometry(Part.Circle(App.Vector(-65, 12.2, 0), App.Vector(0, 0, 1), 7), False)
sketch5.addGeometry(Part.Circle(App.Vector(-95, -25, 0), App.Vector(0, 0, 1), 3), False)
sketch5.addGeometry(Part.Circle(App.Vector(-35, -25, 0), App.Vector(0, 0, 1), 3), False)
sketch5.addGeometry(Part.Circle(App.Vector(-35, 45, 0), App.Vector(0, 0, 1), 3), False)
sketch5.addGeometry(Part.Circle(App.Vector(-95, 45, 0), App.Vector(0, 0, 1), 3), False)
sketch5.addGeometry(Part.Circle(App.Vector(-65, -25, 0), App.Vector(0, 0, 1), 3), False)
sketch5.addConstraint(Sketcher.Constraint("Equal", 1, 2))
sketch5.addConstraint(Sketcher.Constraint("Equal", 2, 3))
sketch5.addConstraint(Sketcher.Constraint("Equal", 3, 4))
sketch5.addConstraint(Sketcher.Constraint("Equal", 4, 5))
sketch5.addConstraint(Sketcher.Constraint("Horizontal", 1, 3, 2, 3))
sketch5.addConstraint(Sketcher.Constraint("Horizontal", 3, 3, 4, 3))
sketch5.addConstraint(Sketcher.Constraint("Horizontal", 2, 3, 5, 3))
sketch5.addConstraint(Sketcher.Constraint("Vertical", 2, 3, 3, 3))
sketch5.addConstraint(Sketcher.Constraint("Vertical", 1, 3, 4, 3))
sketch5.addConstraint(Sketcher.Constraint("Vertical", 0, 3, 5, 3))
sketch5.addConstraint(Sketcher.Constraint("Diameter", 1, Q("6 mm")))
sketch5.addConstraint(Sketcher.Constraint("Diameter", 0, Q("14 mm")))
sketch5.addConstraint(Sketcher.Constraint("DistanceX", 1, 3, 0, 3, Q("30 mm")))
sketch5.addConstraint(Sketcher.Constraint("DistanceX", 0, 3, 2, 3, Q("30 mm")))
sketch5.addConstraint(Sketcher.Constraint("DistanceX", 0, 3, -1, 1, Q("65 mm")))
sketch5.addConstraint(Sketcher.Constraint("DistanceY", 1, 3, -1, 1, Q("25 mm")))
sketch5.addConstraint(Sketcher.Constraint("DistanceY", -1, 1, 3, 3, Q("45 mm")))
sketch5.addConstraint(Sketcher.Constraint("DistanceY", -1, 1, 0, 3, Q("12.16 mm")))
pocket2 = body.newObject("PartDesign::Pocket", "Pocket001")
pocket2.Profile = sketch5
pocket2.Type = "ThroughAll"
pocket2.Reversed = True

sketch6 = body.newObject("Sketcher::SketchObject", "Sketch005")
sketch6.AttachmentSupport = (doc.getObject("XY_Plane"), [""])
sketch6.MapMode = "FlatFace"
add_polygon(sketch6, [(-90, 26), (-90, 64), (-40, 64), (-40, 26)])
sketch6.addConstraint(Sketcher.Constraint("Vertical", 0))
sketch6.addConstraint(Sketcher.Constraint("Horizontal", 1))
sketch6.addConstraint(Sketcher.Constraint("Vertical", 2))
sketch6.addConstraint(Sketcher.Constraint("Horizontal", 3))
sketch6.addConstraint(Sketcher.Constraint("DistanceX", 1, 1, 1, 2, Q("49.8872 mm")))
sketch6.addConstraint(Sketcher.Constraint("DistanceY", 0, 1, 0, 2, Q("37.8335 mm")))
sketch6.addConstraint(Sketcher.Constraint("DistanceY", -1, 1, 2, 2, Q("25.762 mm")))
sketch6.addConstraint(Sketcher.Constraint("DistanceX", 0, 2, -1, 1, Q("89.9436 mm")))
pocket3 = body.newObject("PartDesign::Pocket", "Pocket002")
pocket3.Profile = sketch6
pocket3.Type = "ThroughAll"
pocket3.Reversed = True

sketch7 = body.newObject("Sketcher::SketchObject", "Sketch006")
sketch7.AttachmentSupport = (doc.getObject("XY_Plane"), [""])
sketch7.MapMode = "FlatFace"
sketch7.addGeometry(Part.Circle(App.Vector(-15, -40.6, 0), App.Vector(0, 0, 1), 2.4), False)
sketch7.addGeometry(Part.Circle(App.Vector(-115, -40.6, 0), App.Vector(0, 0, 1), 2.4), False)
sketch7.addConstraint(Sketcher.Constraint("Equal", 0, 1))
sketch7.addConstraint(Sketcher.Constraint("Horizontal", 0, 3, 1, 3))
sketch7.addConstraint(Sketcher.Constraint("Diameter", 0, Q("4.8 mm")))
sketch7.addConstraint(Sketcher.Constraint("DistanceX", 1, 3, 0, 3, Q("100 mm")))
sketch7.addConstraint(Sketcher.Constraint("DistanceX", 0, 3, -1, 1, Q("15 mm")))
sketch7.addConstraint(Sketcher.Constraint("DistanceY", 0, 3, -1, 1, Q("40.5812 mm")))
pocket4 = body.newObject("PartDesign::Pocket", "Pocket003")
pocket4.Profile = sketch7
pocket4.Type = "ThroughAll"
pocket4.Reversed = True

doc.recompute()
